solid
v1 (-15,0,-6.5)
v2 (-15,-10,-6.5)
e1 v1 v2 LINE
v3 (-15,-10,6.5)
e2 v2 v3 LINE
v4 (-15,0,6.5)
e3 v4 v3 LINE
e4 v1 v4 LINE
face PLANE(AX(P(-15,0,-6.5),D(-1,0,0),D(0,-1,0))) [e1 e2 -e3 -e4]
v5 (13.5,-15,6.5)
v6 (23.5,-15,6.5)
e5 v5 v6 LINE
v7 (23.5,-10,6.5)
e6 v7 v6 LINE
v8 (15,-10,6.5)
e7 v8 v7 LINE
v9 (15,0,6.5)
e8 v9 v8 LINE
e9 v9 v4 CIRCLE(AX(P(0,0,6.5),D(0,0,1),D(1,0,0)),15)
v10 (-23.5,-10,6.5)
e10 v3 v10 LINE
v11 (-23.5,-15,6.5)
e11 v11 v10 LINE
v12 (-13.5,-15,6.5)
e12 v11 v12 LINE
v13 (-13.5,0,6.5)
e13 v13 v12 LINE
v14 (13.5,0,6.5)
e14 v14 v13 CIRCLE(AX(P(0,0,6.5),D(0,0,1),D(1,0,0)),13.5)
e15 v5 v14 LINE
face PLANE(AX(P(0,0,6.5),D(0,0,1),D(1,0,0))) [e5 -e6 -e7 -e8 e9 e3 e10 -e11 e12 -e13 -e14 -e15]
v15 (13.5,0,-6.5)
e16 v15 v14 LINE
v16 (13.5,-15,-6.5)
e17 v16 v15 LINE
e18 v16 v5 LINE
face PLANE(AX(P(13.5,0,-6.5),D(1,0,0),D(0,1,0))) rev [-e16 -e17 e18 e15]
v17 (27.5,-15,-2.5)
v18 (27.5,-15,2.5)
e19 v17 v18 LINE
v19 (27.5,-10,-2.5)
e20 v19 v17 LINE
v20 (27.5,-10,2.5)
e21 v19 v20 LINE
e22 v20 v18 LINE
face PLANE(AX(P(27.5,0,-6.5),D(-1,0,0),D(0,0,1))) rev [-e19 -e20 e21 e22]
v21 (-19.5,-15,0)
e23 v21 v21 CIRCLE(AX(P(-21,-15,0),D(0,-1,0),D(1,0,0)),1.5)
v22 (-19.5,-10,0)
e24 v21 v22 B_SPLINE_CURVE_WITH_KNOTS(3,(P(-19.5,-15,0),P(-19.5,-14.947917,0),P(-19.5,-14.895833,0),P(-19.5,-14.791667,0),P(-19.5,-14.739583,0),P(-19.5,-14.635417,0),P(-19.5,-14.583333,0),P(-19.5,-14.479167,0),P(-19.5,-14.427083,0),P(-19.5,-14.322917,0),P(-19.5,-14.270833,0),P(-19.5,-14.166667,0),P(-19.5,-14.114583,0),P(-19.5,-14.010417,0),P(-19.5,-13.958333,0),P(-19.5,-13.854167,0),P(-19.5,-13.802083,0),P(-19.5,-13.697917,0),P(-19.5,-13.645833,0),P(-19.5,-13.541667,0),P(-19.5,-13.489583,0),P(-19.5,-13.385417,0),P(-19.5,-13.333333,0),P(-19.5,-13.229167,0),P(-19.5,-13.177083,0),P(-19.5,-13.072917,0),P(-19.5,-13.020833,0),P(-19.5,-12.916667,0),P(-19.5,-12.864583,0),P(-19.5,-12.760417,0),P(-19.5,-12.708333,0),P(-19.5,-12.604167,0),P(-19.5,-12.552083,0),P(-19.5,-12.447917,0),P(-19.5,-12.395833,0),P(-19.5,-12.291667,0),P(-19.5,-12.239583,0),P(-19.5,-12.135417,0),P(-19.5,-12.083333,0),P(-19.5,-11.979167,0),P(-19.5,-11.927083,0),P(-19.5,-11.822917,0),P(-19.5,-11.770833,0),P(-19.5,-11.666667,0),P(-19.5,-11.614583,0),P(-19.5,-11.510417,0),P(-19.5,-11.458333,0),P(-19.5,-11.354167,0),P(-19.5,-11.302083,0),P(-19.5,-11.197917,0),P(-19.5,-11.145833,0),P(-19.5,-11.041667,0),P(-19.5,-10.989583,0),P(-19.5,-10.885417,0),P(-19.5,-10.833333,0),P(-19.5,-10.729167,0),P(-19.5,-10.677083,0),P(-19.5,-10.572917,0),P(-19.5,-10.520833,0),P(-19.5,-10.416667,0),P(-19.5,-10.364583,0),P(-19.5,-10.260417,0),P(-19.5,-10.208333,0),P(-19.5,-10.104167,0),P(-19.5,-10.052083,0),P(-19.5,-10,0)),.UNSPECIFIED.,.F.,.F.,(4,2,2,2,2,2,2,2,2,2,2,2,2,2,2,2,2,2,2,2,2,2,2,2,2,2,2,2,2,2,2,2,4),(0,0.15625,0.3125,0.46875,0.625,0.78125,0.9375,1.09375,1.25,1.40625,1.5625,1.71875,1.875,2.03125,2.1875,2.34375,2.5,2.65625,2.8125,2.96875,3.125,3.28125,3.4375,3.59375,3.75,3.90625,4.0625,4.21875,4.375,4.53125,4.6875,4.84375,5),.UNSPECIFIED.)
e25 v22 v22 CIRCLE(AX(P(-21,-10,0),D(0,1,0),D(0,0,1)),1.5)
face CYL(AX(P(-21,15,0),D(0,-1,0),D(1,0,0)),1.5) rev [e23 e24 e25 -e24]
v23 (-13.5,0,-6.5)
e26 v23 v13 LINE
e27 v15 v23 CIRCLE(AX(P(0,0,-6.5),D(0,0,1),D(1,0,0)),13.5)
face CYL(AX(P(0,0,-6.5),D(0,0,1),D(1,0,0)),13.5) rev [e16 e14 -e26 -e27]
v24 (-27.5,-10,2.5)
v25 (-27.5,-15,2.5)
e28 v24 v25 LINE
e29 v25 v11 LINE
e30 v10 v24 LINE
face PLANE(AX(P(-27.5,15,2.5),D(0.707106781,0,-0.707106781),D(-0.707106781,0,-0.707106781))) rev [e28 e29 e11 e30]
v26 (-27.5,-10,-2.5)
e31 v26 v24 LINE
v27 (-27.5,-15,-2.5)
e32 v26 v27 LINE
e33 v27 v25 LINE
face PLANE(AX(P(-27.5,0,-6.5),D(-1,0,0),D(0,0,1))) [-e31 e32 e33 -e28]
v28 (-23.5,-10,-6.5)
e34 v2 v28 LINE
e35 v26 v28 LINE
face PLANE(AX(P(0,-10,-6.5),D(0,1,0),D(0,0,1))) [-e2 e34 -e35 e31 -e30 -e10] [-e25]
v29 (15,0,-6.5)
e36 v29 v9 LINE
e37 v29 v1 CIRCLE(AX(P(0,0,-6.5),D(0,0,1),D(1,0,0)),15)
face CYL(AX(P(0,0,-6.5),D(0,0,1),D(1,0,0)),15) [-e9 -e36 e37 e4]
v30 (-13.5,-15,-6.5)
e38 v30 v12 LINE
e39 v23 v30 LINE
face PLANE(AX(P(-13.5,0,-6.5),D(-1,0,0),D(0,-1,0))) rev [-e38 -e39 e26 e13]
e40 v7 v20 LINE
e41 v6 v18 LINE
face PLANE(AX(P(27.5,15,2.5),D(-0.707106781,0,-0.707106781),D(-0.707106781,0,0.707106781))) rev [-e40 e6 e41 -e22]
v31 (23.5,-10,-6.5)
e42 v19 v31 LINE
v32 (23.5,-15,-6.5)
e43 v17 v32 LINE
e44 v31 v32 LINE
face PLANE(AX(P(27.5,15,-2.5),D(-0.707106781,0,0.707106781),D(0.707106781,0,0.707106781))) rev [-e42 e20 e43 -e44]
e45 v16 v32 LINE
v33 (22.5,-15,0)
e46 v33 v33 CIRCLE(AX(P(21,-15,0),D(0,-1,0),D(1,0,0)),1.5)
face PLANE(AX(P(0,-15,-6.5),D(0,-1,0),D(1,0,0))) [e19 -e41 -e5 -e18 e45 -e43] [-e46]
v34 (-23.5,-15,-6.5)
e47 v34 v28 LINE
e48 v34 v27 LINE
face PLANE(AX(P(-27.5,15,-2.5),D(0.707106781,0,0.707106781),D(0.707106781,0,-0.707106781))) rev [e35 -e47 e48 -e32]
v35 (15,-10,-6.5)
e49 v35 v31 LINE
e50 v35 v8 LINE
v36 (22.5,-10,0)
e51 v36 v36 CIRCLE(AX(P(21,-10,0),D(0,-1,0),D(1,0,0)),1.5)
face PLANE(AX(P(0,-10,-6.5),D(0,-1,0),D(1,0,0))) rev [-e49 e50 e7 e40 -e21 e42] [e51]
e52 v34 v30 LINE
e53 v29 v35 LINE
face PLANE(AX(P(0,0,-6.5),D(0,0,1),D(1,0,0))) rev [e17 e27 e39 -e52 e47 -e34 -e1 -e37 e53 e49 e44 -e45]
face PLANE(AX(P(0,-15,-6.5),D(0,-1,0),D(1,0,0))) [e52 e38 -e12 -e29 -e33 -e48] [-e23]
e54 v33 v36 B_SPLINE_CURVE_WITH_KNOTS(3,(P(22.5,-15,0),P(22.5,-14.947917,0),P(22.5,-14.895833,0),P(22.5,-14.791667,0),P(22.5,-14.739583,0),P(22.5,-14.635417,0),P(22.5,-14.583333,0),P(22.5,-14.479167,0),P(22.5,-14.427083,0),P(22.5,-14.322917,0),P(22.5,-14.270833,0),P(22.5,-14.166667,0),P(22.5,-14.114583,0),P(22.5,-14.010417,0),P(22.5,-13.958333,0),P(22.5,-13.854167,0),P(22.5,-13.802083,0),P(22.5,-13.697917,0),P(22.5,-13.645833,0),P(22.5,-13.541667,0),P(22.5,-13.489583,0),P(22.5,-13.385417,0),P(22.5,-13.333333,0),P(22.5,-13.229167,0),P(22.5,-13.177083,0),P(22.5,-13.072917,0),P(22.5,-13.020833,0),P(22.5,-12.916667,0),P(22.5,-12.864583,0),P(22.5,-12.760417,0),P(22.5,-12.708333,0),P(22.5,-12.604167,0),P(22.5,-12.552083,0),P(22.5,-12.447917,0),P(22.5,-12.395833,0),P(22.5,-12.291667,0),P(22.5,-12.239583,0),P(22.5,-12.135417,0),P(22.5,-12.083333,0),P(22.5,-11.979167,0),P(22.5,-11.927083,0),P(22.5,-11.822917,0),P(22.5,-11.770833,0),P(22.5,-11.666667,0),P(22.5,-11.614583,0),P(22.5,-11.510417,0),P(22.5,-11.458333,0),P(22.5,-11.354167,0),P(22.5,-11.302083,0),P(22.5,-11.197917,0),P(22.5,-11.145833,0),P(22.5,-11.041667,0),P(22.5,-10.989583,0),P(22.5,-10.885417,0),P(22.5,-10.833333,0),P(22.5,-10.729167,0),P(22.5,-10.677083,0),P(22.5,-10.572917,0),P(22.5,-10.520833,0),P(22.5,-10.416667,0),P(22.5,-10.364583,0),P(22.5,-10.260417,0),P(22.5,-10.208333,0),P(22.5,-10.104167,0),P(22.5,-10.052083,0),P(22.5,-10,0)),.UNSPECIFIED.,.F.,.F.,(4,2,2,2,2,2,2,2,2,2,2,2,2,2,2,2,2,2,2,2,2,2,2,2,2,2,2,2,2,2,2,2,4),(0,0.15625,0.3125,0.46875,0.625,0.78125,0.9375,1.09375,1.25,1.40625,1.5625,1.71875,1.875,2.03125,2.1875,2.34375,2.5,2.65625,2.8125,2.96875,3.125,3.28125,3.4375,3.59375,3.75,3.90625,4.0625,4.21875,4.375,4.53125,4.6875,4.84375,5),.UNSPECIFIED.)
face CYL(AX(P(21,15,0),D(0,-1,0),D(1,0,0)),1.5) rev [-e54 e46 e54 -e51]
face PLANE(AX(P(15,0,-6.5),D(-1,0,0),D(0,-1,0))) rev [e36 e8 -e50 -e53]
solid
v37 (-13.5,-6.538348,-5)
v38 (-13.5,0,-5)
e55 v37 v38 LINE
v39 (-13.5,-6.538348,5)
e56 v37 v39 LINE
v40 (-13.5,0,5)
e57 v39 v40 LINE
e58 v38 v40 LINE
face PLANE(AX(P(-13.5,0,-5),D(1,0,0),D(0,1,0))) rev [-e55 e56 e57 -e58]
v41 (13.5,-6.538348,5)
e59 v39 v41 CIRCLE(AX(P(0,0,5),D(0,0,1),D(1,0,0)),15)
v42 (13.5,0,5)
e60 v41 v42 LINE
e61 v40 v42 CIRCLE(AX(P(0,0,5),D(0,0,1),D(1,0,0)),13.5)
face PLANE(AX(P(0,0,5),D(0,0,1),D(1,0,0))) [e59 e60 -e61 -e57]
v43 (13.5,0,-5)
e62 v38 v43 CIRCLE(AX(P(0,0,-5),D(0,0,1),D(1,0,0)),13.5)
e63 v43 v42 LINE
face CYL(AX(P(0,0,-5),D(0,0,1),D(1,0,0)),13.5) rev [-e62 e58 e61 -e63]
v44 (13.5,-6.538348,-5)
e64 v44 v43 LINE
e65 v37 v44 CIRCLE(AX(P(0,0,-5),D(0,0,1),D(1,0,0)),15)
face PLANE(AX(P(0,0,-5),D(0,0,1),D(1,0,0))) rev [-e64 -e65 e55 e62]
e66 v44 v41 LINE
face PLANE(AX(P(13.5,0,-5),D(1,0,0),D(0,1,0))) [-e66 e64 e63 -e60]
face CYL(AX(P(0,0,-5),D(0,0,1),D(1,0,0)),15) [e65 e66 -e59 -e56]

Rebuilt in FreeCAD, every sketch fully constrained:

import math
import FreeCAD as App
import Part
import Sketcher
from FreeCAD import Vector
Q = App.Units.Quantity


def add_polygon(sketch, points):
    """Adds a closed chain of lines whose ends are joined by coincident constraints."""
    first, n = sketch.GeometryCount, len(points)
    for a, b in zip(points, points[1:] + points[:1]):
        sketch.addGeometry(Part.LineSegment(App.Vector(*a, 0), App.Vector(*b, 0)), False)
    for i in range(n):
        sketch.addConstraint(Sketcher.Constraint("Coincident", first + i, 2, first + (i + 1) % n, 1))

doc = App.newDocument("Part")
body = doc.addObject("PartDesign::Body", "Body")

# Sketch on XY plane
sketch1 = body.newObject("Sketcher::SketchObject", "Sketch")
sketch1.AttachmentSupport = (doc.getObject("XY_Plane"), [""])
sketch1.MapMode = "FlatFace"
sketch1.addGeometry(Part.ArcOfCircle(Part.Circle(Vector(0, 0, 0), Vector(0, 0, 1), 15), math.radians(0), math.radians(180)), False)
sketch1.addGeometry(Part.LineSegment(Vector(-15, 0, 0), Vector(-15, -10, 0)), False)
sketch1.addGeometry(Part.LineSegment(Vector(-15, -10, 0), Vector(-28, -10, 0)), False)
sketch1.addGeometry(Part.LineSegment(Vector(-28, -10, 0), Vector(-28, -15, 0)), False)
sketch1.addGeometry(Part.LineSegment(Vector(-28, -15, 0), Vector(-14, -15, 0)), False)
sketch1.addGeometry(Part.LineSegment(Vector(-14, -15, 0), Vector(-14, 0, 0)), False)
sketch1.addGeometry(Part.ArcOfCircle(Part.Circle(Vector(0, 0, 0), Vector(0, 0, 1), 14), math.radians(0), math.radians(180)), False)
sketch1.addGeometry(Part.LineSegment(Vector(14, 0, 0), Vector(14, -15, 0)), False)
sketch1.addGeometry(Part.LineSegment(Vector(14, -15, 0), Vector(28, -15, 0)), False)
sketch1.addGeometry(Part.LineSegment(Vector(28, -15, 0), Vector(28, -10, 0)), False)
sketch1.addGeometry(Part.LineSegment(Vector(28, -10, 0), Vector(15, -10, 0)), False)
sketch1.addGeometry(Part.LineSegment(Vector(15, -10, 0), Vector(15, 0, 0)), False)
sketch1.addConstraint(Sketcher.Constraint("Tangent", 0, 2, 1, 1))
sketch1.addConstraint(Sketcher.Constraint("Coincident", 1, 2, 2, 1))
sketch1.addConstraint(Sketcher.Constraint("Coincident", 2, 2, 3, 1))
sketch1.addConstraint(Sketcher.Constraint("Coincident", 3, 2, 4, 1))
sketch1.addConstraint(Sketcher.Constraint("Coincident", 4, 2, 5, 1))
sketch1.addConstraint(Sketcher.Constraint("Tangent", 5, 2, 6, 2))
sketch1.addConstraint(Sketcher.Constraint("Tangent", 6, 1, 7, 1))
sketch1.addConstraint(Sketcher.Constraint("Coincident", 7, 2, 8, 1))
sketch1.addConstraint(Sketcher.Constraint("Coincident", 8, 2, 9, 1))
sketch1.addConstraint(Sketcher.Constraint("Coincident", 9, 2, 10, 1))
sketch1.addConstraint(Sketcher.Constraint("Coincident", 10, 2, 11, 1))
sketch1.addConstraint(Sketcher.Constraint("Tangent", 11, 2, 0, 1))
sketch1.addConstraint(Sketcher.Constraint("Vertical", 1))
sketch1.addConstraint(Sketcher.Constraint("Horizontal", 2))
sketch1.addConstraint(Sketcher.Constraint("Vertical", 3))
sketch1.addConstraint(Sketcher.Constraint("Horizontal", 4))
sketch1.addConstraint(Sketcher.Constraint("Vertical", 5))
sketch1.addConstraint(Sketcher.Constraint("Vertical", 7))
sketch1.addConstraint(Sketcher.Constraint("Horizontal", 8))
sketch1.addConstraint(Sketcher.Constraint("Vertical", 9))
sketch1.addConstraint(Sketcher.Constraint("Horizontal", 10))
sketch1.addConstraint(Sketcher.Constraint("Vertical", 11))
sketch1.addConstraint(Sketcher.Constraint("Coincident", 0, 3, -1, 1))
sketch1.addConstraint(Sketcher.Constraint("Coincident", 6, 3, -1, 1))
sketch1.addConstraint(Sketcher.Constraint("Symmetric", 3, 2, 8, 2, -2))
sketch1.addConstraint(Sketcher.Constraint("Horizontal", 2, 2, 9, 2))
sketch1.addConstraint(Sketcher.Constraint("Radius", 0, Q("15 mm")))
sketch1.addConstraint(Sketcher.Constraint("Radius", 6, Q("13.5 mm")))
sketch1.addConstraint(Sketcher.Constraint("DistanceX", 4, 1, 4, 2, Q("14 mm")))
sketch1.addConstraint(Sketcher.Constraint("DistanceY", 1, 2, 1, 1, Q("10 mm")))
sketch1.addConstraint(Sketcher.Constraint("DistanceY", 3, 2, 3, 1, Q("5 mm")))
pad1 = body.newObject("PartDesign::Pad", "Pad")
pad1.Profile = sketch1
pad1.Type = "TwoLengths"
pad1.Length = 6.5
pad1.Length2 = 6.5

# Sketch on XZ plane
sketch2 = body.newObject("Sketcher::SketchObject", "Sketch001")
sketch2.AttachmentSupport = (doc.getObject("XZ_Plane"), [""])
sketch2.MapMode = "FlatFace"
sketch2.AttachmentOffset = App.Placement(Vector(0, 0, 15), App.Rotation())
sketch2.addGeometry(Part.Circle(Vector(-21, 0, 0), Vector(0, 0, 1), 1.5), False)  # 0
sketch2.addGeometry(Part.Circle(Vector(21, 0, 0), Vector(0, 0, 1), 1.5), False)  # 1
add_polygon(sketch2, [(-27.5, 2.5), (-23.5, 6.5), (-27.5, 6.5)])  # lines 2-4
add_polygon(sketch2, [(-27.5, -6.5), (-23.5, -6.5), (-27.5, -2.5)])  # lines 5-7
add_polygon(sketch2, [(27.5, 6.5), (23.5, 6.5), (27.5, 2.5)])  # lines 8-10
add_polygon(sketch2, [(27.5, -2.5), (23.5, -6.5), (27.5, -6.5)])  # lines 11-13
sketch2.addConstraint(Sketcher.Constraint("Horizontal", 3))
sketch2.addConstraint(Sketcher.Constraint("Vertical", 4))
sketch2.addConstraint(Sketcher.Constraint("Horizontal", 5))
sketch2.addConstraint(Sketcher.Constraint("Vertical", 7))
sketch2.addConstraint(Sketcher.Constraint("Horizontal", 8))
sketch2.addConstraint(Sketcher.Constraint("Vertical", 10))
sketch2.addConstraint(Sketcher.Constraint("Horizontal", 12))
sketch2.addConstraint(Sketcher.Constraint("Vertical", 13))
sketch2.addConstraint(Sketcher.Constraint("Equal", 0, 1))
sketch2.addConstraint(Sketcher.Constraint("Symmetric", 0, 3, 1, 3, -1, 1))
sketch2.addConstraint(Sketcher.Constraint("Symmetric", 5, 2, 8, 2, -1, 1))
sketch2.addConstraint(Sketcher.Constraint("Symmetric", 6, 2, 9, 2, -1, 1))
sketch2.addConstraint(Sketcher.Constraint("Symmetric", 2, 2, 11, 2, -1, 1))
sketch2.addConstraint(Sketcher.Constraint("Symmetric", 4, 2, 13, 2, -1, 1))
sketch2.addConstraint(Sketcher.Constraint("Symmetric", 2, 2, 8, 2, -2))
sketch2.addConstraint(Sketcher.Constraint("Symmetric", 4, 2, 9, 2, -2))
sketch2.addConstraint(Sketcher.Constraint("PointOnObject", 0, 3, -1))
sketch2.addConstraint(Sketcher.Constraint("Perpendicular", 2, 6))
sketch2.addConstraint(Sketcher.Constraint("Diameter", 0, Q("3 mm")))
sketch2.addConstraint(Sketcher.Constraint("DistanceX", 3, 2, 3, 1, Q("4 mm")))
sketch2.addConstraint(Sketcher.Constraint("DistanceX", 0, 3, -1, 1, Q("21 mm")))
sketch2.addConstraint(Sketcher.Constraint("DistanceY", 5, 2, 4, 2, Q("9 mm")))
sketch2.addConstraint(Sketcher.Constraint("DistanceX", 2, 2, 8, 2, Q("47 mm")))
pocket1 = body.newObject("PartDesign::Pocket", "Pocket")
pocket1.Profile = sketch2
pocket1.Type = "ThroughAll"
pocket1.Midplane = True
body2 = doc.addObject("PartDesign::Body", "Body001")

# Sketch on XY plane
sketch3 = body2.newObject("Sketcher::SketchObject", "Sketch002")
sketch3.AttachmentSupport = (doc.getObject("XY_Plane001"), [""])
sketch3.MapMode = "FlatFace"
sketch3.addGeometry(Part.ArcOfCircle(Part.Circle(Vector(0, 0, 0), Vector(0, 0, 1), 15), math.radians(-154), math.radians(-90)), False)
sketch3.addGeometry(Part.ArcOfCircle(Part.Circle(Vector(0, 0, 0), Vector(0, 0, 1), 15), math.radians(-90), math.radians(-26)), False)
sketch3.addGeometry(Part.LineSegment(Vector(14, -7, 0), Vector(14, 0, 0)), False)
sketch3.addGeometry(Part.ArcOfCircle(Part.Circle(Vector(0, 0, 0), Vector(0, 0, 1), 14), math.radians(-90), math.radians(0)), False)
sketch3.addGeometry(Part.ArcOfCircle(Part.Circle(Vector(0, 0, 0), Vector(0, 0, 1), 14), math.radians(180), math.radians(270)), False)
sketch3.addGeometry(Part.LineSegment(Vector(-14, 0, 0), Vector(-14, -7, 0)), False)
sketch3.addConstraint(Sketcher.Constraint("Tangent", 0, 2, 1, 1))
sketch3.addConstraint(Sketcher.Constraint("Coincident", 1, 2, 2, 1))
sketch3.addConstraint(Sketcher.Constraint("Tangent", 2, 2, 3, 2))
sketch3.addConstraint(Sketcher.Constraint("Tangent", 3, 1, 4, 2))
sketch3.addConstraint(Sketcher.Constraint("Tangent", 4, 1, 5, 1))
sketch3.addConstraint(Sketcher.Constraint("Coincident", 5, 2, 0, 1))
sketch3.addConstraint(Sketcher.Constraint("Vertical", 2))
sketch3.addConstraint(Sketcher.Constraint("Vertical", 5))
sketch3.addConstraint(Sketcher.Constraint("Coincident", 0, 3, -1, 1))
sketch3.addConstraint(Sketcher.Constraint("Coincident", 3, 3, -1, 1))
sketch3.addConstraint(Sketcher.Constraint("Equal", 0, 1))
sketch3.addConstraint(Sketcher.Constraint("Equal", 3, 4))
sketch3.addConstraint(Sketcher.Constraint("PointOnObject", 0, 2, -2))
sketch3.addConstraint(Sketcher.Constraint("PointOnObject", 3, 1, -2))
sketch3.addConstraint(Sketcher.Constraint("Radius", 0, Q("15 mm")))
sketch3.addConstraint(Sketcher.Constraint("Radius", 3, Q("13.5 mm")))
pad2 = body2.newObject("PartDesign::Pad", "Pad001")
pad2.Profile = sketch3
pad2.Type = "TwoLengths"
pad2.Length = 5
pad2.Length2 = 5

doc.recompute()
